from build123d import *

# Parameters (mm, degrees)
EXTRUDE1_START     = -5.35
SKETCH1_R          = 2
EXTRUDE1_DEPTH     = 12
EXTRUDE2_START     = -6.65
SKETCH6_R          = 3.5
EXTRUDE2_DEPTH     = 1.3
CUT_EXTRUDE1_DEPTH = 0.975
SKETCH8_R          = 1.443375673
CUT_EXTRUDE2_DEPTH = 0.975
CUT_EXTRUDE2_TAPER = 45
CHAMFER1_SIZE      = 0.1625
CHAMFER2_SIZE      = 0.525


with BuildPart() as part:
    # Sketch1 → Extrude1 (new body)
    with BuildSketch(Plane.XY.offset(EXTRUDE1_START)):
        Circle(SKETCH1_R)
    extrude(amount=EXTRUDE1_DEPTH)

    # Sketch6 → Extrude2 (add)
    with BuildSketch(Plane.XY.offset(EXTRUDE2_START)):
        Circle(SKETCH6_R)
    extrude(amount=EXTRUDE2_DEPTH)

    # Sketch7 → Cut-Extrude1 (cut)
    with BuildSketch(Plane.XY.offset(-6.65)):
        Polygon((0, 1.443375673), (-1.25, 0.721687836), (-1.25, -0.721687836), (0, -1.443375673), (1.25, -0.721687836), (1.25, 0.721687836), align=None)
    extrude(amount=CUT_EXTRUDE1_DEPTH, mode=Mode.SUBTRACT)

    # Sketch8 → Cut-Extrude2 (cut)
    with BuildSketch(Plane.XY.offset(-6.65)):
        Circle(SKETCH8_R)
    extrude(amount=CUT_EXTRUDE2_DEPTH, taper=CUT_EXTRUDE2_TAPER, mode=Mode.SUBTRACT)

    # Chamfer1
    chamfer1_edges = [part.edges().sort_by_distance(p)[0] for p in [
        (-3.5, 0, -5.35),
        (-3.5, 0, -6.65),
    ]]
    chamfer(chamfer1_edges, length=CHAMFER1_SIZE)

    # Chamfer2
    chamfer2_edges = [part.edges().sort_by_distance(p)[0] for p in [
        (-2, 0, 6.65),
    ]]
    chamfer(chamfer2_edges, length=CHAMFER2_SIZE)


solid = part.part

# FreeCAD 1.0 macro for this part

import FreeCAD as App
import Part
import Sketcher
from FreeCAD import Vector
Q = App.Units.Quantity


def edges_at(feature, points):
    """Names of the edges that pass closest to the given points."""
    edges = feature.Shape.Edges
    near = lambda p: min(range(len(edges)), key=lambda i: edges[i].distToShape(Part.Vertex(*p))[0])
    return sorted({f"Edge{near(p) + 1}" for p in points})


def add_polygon(sketch, points):
    """Adds a closed chain of lines whose ends are joined by coincident constraints."""
    first, n = sketch.GeometryCount, len(points)
    for a, b in zip(points, points[1:] + points[:1]):
        sketch.addGeometry(Part.LineSegment(App.Vector(*a, 0), App.Vector(*b, 0)), False)
    for i in range(n):
        sketch.addConstraint(Sketcher.Constraint("Coincident", first + i, 2, first + (i + 1) % n, 1))

doc = App.newDocument("Part")
body = doc.addObject("PartDesign::Body", "Body")

# Sketch on XY plane
sketch1 = body.newObject("Sketcher::SketchObject", "Sketch")
sketch1.AttachmentSupport = (doc.getObject("XY_Plane"), [""])
sketch1.MapMode = "FlatFace"
sketch1.AttachmentOffset = App.Placement(Vector(0, 0, -5.35), App.Rotation())
sketch1.addGeometry(Part.Circle(Vector(0, 0, 0), Vector(0, 0, 1), 2), False)
sketch1.addConstraint([
    Sketcher.Constraint("Coincident", 0, 3, -1, 1),
    Sketcher.Constraint("Diameter", 0, Q("4 mm")),
])
pad1 = body.newObject("PartDesign::Pad", "Pad")
pad1.Profile = sketch1
pad1.Length = 12

# Sketch on XY plane
sketch2 = body.newObject("Sketcher::SketchObject", "Sketch001")
sketch2.AttachmentSupport = (doc.getObject("XY_Plane"), [""])
sketch2.MapMode = "FlatFace"
sketch2.AttachmentOffset = App.Placement(Vector(0, 0, -6.65), App.Rotation())
sketch2.addGeometry(Part.Circle(Vector(0, 0, 0), Vector(0, 0, 1), 3.5), False)
sketch2.addConstraint([
    Sketcher.Constraint("Coincident", 0, 3, -1, 1),
    Sketcher.Constraint("Diameter", 0, Q("7 mm")),
])
pad2 = body.newObject("PartDesign::Pad", "Pad001")
pad2.Profile = sketch2
pad2.Length = 1.3

# Sketch on XY plane
sketch3 = body.newObject("Sketcher::SketchObject", "Sketch002")
sketch3.AttachmentSupport = (doc.getObject("XY_Plane"), [""])
sketch3.MapMode = "FlatFace"
sketch3.AttachmentOffset = App.Placement(Vector(0, 0, -6.65), App.Rotation())
add_polygon(sketch3, [(0, 1.4), (-1.2, 0.7), (-1.2, -0.7), (0, -1.4), (1.2, -0.7), (1.2, 0.7)])  # lines 0-5
sketch3.addConstraint([
    Sketcher.Constraint("Vertical", 1),
    Sketcher.Constraint("Vertical", 4),
    Sketcher.Constraint("Symmetric", 0, 2, 3, 2, -1, 1),
    Sketcher.Constraint("Symmetric", 2, 2, 5, 2, -1, 1),
    Sketcher.Constraint("PointOnObject", 2, 2, -2),
    Sketcher.Constraint("Parallel", 2, 5),
    Sketcher.Constraint("Horizontal", 1, 2, 3, 2),
    Sketcher.Constraint("Angle", 0, Q("-150 deg")),
    Sketcher.Constraint("DistanceX", 1, 2, 3, 2, Q("2.5 mm")),
    Sketcher.Constraint("DistanceY", 1, 2, 1, 1, Q("1.443376 mm")),
])
pocket1 = body.newObject("PartDesign::Pocket", "Pocket")
pocket1.Profile = sketch3
pocket1.Length = 0.975
pocket1.Reversed = True

# Sketch on XY plane
sketch4 = body.newObject("Sketcher::SketchObject", "Sketch003")
sketch4.AttachmentSupport = (doc.getObject("XY_Plane"), [""])
sketch4.MapMode = "FlatFace"
sketch4.AttachmentOffset = App.Placement(Vector(0, 0, -6.65), App.Rotation())
sketch4.addGeometry(Part.Circle(Vector(0, 0, 0), Vector(0, 0, 1), 1.4), False)
sketch4.addConstraint([
    Sketcher.Constraint("Coincident", 0, 3, -1, 1),
    Sketcher.Constraint("Diameter", 0, Q("2.886751 mm")),
])
pocket2 = body.newObject("PartDesign::Pocket", "Pocket001")
pocket2.Profile = sketch4
pocket2.Length = 0.975
pocket2.Reversed = True
pocket2.TaperAngle = -45
doc.recompute()

chamfer = body.newObject("PartDesign::Chamfer", "Chamfer")
chamfer.Base = (pocket2, edges_at(pocket2, [(-3.5, 0, -5.35), (-3.5, 0, -6.65)]))
chamfer.Size = 0.1625
doc.recompute()

chamfer2 = body.newObject("PartDesign::Chamfer", "Chamfer001")
chamfer2.Base = (chamfer, edges_at(chamfer, [(-2, 0, 6.65)]))
chamfer2.Size = 0.525

doc.recompute()
